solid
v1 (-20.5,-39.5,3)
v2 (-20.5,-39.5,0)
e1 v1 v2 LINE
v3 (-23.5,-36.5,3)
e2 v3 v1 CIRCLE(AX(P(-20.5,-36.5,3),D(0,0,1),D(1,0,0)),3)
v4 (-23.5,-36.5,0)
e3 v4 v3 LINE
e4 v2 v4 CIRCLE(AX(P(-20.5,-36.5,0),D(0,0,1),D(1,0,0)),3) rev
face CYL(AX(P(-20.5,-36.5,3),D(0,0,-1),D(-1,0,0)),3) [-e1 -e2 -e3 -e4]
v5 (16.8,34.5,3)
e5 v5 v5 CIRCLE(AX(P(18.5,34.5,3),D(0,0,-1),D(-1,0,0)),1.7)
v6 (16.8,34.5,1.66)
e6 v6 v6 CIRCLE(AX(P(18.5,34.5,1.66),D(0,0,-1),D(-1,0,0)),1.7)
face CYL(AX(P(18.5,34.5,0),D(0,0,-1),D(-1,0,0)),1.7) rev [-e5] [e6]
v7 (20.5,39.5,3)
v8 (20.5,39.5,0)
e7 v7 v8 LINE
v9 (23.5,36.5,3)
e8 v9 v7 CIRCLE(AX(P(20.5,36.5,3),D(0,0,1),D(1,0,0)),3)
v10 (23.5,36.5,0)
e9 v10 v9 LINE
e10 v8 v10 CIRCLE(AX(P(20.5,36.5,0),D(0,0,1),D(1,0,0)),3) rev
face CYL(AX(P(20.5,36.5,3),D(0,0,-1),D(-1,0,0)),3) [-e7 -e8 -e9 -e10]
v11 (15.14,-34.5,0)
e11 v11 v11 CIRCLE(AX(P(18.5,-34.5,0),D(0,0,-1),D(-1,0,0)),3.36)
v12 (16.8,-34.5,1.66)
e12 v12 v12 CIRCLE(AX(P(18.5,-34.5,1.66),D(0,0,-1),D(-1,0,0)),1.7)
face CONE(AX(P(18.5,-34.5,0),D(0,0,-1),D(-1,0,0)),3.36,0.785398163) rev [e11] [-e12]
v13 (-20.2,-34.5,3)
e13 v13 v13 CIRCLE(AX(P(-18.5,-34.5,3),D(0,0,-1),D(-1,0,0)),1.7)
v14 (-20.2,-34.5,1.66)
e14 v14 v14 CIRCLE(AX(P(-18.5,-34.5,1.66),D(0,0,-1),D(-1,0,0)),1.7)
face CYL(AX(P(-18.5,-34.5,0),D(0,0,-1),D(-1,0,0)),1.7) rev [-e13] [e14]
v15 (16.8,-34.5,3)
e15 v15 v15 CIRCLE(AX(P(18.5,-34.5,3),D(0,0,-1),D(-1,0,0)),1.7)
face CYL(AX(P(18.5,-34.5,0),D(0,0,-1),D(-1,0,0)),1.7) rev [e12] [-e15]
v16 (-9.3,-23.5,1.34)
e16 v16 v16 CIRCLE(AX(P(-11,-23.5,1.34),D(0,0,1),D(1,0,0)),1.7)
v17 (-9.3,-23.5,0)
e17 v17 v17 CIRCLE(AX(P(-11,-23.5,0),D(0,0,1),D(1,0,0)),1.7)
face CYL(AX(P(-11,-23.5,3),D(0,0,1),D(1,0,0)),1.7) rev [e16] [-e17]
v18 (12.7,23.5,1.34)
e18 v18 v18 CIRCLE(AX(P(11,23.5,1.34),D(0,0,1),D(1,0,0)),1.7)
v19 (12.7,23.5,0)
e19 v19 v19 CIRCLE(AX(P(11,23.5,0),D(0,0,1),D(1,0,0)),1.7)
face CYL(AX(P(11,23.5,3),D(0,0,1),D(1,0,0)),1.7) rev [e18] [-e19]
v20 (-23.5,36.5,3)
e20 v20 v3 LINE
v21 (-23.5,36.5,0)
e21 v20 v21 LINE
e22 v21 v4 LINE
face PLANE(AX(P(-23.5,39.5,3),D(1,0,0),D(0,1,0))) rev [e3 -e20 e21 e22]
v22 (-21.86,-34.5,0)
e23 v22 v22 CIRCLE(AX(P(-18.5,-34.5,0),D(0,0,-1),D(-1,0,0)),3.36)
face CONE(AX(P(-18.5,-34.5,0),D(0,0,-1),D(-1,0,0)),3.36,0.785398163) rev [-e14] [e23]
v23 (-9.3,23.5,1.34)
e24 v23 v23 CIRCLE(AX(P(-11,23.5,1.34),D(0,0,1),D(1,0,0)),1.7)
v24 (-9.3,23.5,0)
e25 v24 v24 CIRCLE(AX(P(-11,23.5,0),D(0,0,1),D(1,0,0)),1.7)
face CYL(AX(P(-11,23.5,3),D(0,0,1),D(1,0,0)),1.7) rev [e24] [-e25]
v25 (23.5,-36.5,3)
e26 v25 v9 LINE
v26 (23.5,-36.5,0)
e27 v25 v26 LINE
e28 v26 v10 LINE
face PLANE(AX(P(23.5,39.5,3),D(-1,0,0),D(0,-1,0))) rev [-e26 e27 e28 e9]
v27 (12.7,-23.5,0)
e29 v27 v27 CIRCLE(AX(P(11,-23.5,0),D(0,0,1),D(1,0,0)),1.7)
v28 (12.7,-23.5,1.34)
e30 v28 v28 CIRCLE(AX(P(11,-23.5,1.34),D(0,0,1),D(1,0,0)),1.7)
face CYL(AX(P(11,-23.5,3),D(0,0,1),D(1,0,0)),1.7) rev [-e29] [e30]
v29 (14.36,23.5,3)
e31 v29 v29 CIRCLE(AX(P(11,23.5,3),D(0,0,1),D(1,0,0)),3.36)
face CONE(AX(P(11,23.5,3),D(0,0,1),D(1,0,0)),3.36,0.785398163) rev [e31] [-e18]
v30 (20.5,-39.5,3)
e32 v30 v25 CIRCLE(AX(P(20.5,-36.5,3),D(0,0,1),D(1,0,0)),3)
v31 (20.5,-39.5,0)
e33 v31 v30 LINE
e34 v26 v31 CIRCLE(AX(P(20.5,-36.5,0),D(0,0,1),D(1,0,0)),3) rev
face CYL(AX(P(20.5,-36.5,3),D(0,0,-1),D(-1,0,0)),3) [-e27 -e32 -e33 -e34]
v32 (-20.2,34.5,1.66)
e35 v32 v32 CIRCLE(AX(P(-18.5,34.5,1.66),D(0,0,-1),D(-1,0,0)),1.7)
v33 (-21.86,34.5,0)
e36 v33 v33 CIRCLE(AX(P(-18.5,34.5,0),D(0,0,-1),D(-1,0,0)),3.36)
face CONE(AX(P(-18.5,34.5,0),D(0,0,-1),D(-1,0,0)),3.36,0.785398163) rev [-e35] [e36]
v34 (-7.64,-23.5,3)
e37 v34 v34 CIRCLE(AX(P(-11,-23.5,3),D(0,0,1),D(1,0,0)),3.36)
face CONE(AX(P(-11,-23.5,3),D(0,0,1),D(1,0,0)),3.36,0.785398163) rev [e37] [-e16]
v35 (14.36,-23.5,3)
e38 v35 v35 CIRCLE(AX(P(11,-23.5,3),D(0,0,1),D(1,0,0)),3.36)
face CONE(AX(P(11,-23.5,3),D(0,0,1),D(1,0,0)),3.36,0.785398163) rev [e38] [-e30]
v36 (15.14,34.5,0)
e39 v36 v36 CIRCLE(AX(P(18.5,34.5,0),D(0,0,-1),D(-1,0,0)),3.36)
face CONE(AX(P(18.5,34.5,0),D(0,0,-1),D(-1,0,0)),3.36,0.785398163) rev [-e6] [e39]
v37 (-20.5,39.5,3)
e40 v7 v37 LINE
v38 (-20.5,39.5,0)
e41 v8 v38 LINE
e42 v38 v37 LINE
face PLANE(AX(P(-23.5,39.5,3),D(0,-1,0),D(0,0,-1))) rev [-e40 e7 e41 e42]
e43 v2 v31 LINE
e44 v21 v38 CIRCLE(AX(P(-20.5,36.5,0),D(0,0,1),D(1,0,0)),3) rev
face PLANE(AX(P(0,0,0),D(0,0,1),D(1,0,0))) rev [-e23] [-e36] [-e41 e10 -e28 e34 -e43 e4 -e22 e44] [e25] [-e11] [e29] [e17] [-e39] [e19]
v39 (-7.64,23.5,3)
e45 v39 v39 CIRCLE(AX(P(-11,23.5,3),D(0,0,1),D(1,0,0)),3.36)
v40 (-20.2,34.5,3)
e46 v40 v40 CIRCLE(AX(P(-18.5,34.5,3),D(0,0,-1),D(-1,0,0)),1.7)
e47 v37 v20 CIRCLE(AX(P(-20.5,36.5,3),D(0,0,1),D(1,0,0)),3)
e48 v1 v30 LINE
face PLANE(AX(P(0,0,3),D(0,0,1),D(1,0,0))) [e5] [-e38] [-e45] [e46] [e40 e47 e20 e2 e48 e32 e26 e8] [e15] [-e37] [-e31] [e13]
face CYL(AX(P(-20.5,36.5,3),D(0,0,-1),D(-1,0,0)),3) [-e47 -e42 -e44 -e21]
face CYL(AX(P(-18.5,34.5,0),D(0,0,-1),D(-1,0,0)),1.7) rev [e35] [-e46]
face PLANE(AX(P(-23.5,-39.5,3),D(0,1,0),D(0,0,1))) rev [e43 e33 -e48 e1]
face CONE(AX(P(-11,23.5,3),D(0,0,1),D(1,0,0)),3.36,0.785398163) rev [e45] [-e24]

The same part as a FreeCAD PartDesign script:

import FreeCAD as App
import Part
import Sketcher
Q = App.Units.Quantity


def edges_at(feature, points):
    """Names of the edges that pass closest to the given points."""
    edges = feature.Shape.Edges
    near = lambda p: min(range(len(edges)), key=lambda i: edges[i].distToShape(Part.Vertex(*p))[0])
    return sorted({f"Edge{near(p) + 1}" for p in points})


def add_polygon(sketch, points):
    """Adds a closed chain of lines whose ends are joined by coincident constraints."""
    first, n = sketch.GeometryCount, len(points)
    for a, b in zip(points, points[1:] + points[:1]):
        sketch.addGeometry(Part.LineSegment(App.Vector(*a, 0), App.Vector(*b, 0)), False)
    for i in range(n):
        sketch.addConstraint(Sketcher.Constraint("Coincident", first + i, 2, first + (i + 1) % n, 1))

doc = App.newDocument("Part")
body = doc.addObject("PartDesign::Body", "Body")

# Sketch on XY plane
sketch1 = body.newObject("Sketcher::SketchObject", "Sketch")
sketch1.AttachmentSupport = (doc.getObject("XY_Plane"), [""])
sketch1.MapMode = "FlatFace"
add_polygon(sketch1, [(-23.5, 39.5), (-23.5, -39.5), (23.5, -39.5), (23.5, 39.5)])  # lines 0-3
sketch1.addConstraint(Sketcher.Constraint("Vertical", 0))
sketch1.addConstraint(Sketcher.Constraint("Horizontal", 1))
sketch1.addConstraint(Sketcher.Constraint("Vertical", 2))
sketch1.addConstraint(Sketcher.Constraint("Horizontal", 3))
sketch1.addConstraint(Sketcher.Constraint("Symmetric", 0, 2, 2, 2, -1, 1))
sketch1.addConstraint(Sketcher.Constraint("DistanceX", 1, 1, 1, 2, Q("47 mm")))
sketch1.addConstraint(Sketcher.Constraint("DistanceY", 0, 2, 0, 1, Q("79 mm")))
pad1 = body.newObject("PartDesign::Pad", "Pad")
pad1.Profile = sketch1
pad1.Length = 3

# Sketch on YZ plane
sketch2 = body.newObject("Sketcher::SketchObject", "Sketch001")
sketch2.AttachmentSupport = (doc.getObject("YZ_Plane"), [""])
sketch2.MapMode = "FlatFace"
sketch2.AttachmentOffset = App.Placement(App.Vector(0, 0, -11), App.Rotation())
add_polygon(sketch2, [(23.5, 0), (23.5, 3), (20.14, 3), (21.8, 1.34), (21.8, 0)])  # lines 0-4
sketch2.addGeometry(Part.LineSegment(App.Vector(23.5, 3, 0), App.Vector(23.5, 0, 0)), True)  # axis
sketch2.addConstraint(Sketcher.Constraint("Vertical", 0))
sketch2.addConstraint(Sketcher.Constraint("Horizontal", 1))
sketch2.addConstraint(Sketcher.Constraint("Vertical", 3))
sketch2.addConstraint(Sketcher.Constraint("Horizontal", 4))
sketch2.addConstraint(Sketcher.Constraint("Vertical", 5))
sketch2.addConstraint(Sketcher.Constraint("Coincident", 5, 1, 0, 2))
sketch2.addConstraint(Sketcher.Constraint("PointOnObject", 3, 2, -1))
sketch2.addConstraint(Sketcher.Constraint("PointOnObject", 5, 2, -1))
sketch2.addConstraint(Sketcher.Constraint("DistanceY", 0, 1, 0, 2, Q("3 mm")))
sketch2.addConstraint(Sketcher.Constraint("Angle", 2, Q("-45 deg")))
sketch2.addConstraint(Sketcher.Constraint("DistanceX", 4, 1, 4, 2, Q("1.7 mm")))
sketch2.addConstraint(Sketcher.Constraint("DistanceX", 1, 2, 1, 1, Q("3.36 mm")))
sketch2.addConstraint(Sketcher.Constraint("DistanceX", -1, 1, 0, 2, Q("23.5 mm")))
groove = body.newObject("PartDesign::Groove", "Groove")
groove.Profile = sketch2
groove.ReferenceAxis = (sketch2, ["Axis0"])
groove.Angle = 360
doc.recompute()

linearpattern = body.newObject("PartDesign::LinearPattern", "LinearPattern")
linearpattern.Originals = [groove]
linearpattern.Direction = (doc.getObject("X_Axis"), [""])
linearpattern.Mode = "offset"
linearpattern.Offset = 22
linearpattern.Occurrences = 2
body.Tip = linearpattern
doc.recompute()

linearpattern2 = body.newObject("PartDesign::LinearPattern", "LinearPattern001")
linearpattern2.Originals = [groove]
linearpattern2.Direction = (doc.getObject("Y_Axis"), [""])
linearpattern2.Mode = "offset"
linearpattern2.Offset = 47
linearpattern2.Occurrences = 2
linearpattern2.Reversed = True
body.Tip = linearpattern2
doc.recompute()

datumline = body.newObject("PartDesign::Line", "DatumLine")
datumline.Placement = App.Placement(App.Vector(0, 0, 0), App.Rotation(App.Vector(0, 0, 1), App.Vector(0.423940106, -0.905690227, 0)))
linearpattern3 = body.newObject("PartDesign::LinearPattern", "LinearPattern002")
linearpattern3.Originals = [groove]
linearpattern3.Direction = (datumline, [""])
linearpattern3.Mode = "offset"
linearpattern3.Offset = 51.894123
linearpattern3.Occurrences = 2
body.Tip = linearpattern3

# Sketch on YZ plane
sketch3 = body.newObject("Sketcher::SketchObject", "Sketch002")
sketch3.AttachmentSupport = (doc.getObject("YZ_Plane"), [""])
sketch3.MapMode = "FlatFace"
sketch3.AttachmentOffset = App.Placement(App.Vector(0, 0, 18.5), App.Rotation())
add_polygon(sketch3, [(34.5, 3), (34.5, 0), (37.86, 0), (36.2, 1.66), (36.2, 3)])  # lines 0-4
sketch3.addGeometry(Part.LineSegment(App.Vector(34.5, 0, 0), App.Vector(34.5, 3, 0)), True)  # axis
sketch3.addConstraint(Sketcher.Constraint("Vertical", 0))
sketch3.addConstraint(Sketcher.Constraint("Horizontal", 1))
sketch3.addConstraint(Sketcher.Constraint("Vertical", 3))
sketch3.addConstraint(Sketcher.Constraint("Horizontal", 4))
sketch3.addConstraint(Sketcher.Constraint("Vertical", 5))
sketch3.addConstraint(Sketcher.Constraint("Coincident", 5, 1, 0, 2))
sketch3.addConstraint(Sketcher.Constraint("PointOnObject", 0, 2, -1))
sketch3.addConstraint(Sketcher.Constraint("Horizontal", 3, 2, 5, 2))
sketch3.addConstraint(Sketcher.Constraint("DistanceY", 0, 2, 0, 1, Q("3 mm")))
sketch3.addConstraint(Sketcher.Constraint("Angle", 2, Q("135 deg")))
sketch3.addConstraint(Sketcher.Constraint("DistanceX", 4, 2, 4, 1, Q("1.7 mm")))
sketch3.addConstraint(Sketcher.Constraint("DistanceX", 1, 1, 1, 2, Q("3.36 mm")))
sketch3.addConstraint(Sketcher.Constraint("DistanceX", -1, 1, 0, 2, Q("34.5 mm")))
groove2 = body.newObject("PartDesign::Groove", "Groove001")
groove2.Profile = sketch3
groove2.ReferenceAxis = (sketch3, ["Axis0"])
groove2.Angle = 360
doc.recompute()

linearpattern4 = body.newObject("PartDesign::LinearPattern", "LinearPattern003")
linearpattern4.Originals = [groove2]
linearpattern4.Direction = (doc.getObject("X_Axis"), [""])
linearpattern4.Mode = "offset"
linearpattern4.Offset = 37
linearpattern4.Occurrences = 2
linearpattern4.Reversed = True
body.Tip = linearpattern4
doc.recompute()

linearpattern5 = body.newObject("PartDesign::LinearPattern", "LinearPattern004")
linearpattern5.Originals = [groove2]
linearpattern5.Direction = (doc.getObject("Y_Axis"), [""])
linearpattern5.Mode = "offset"
linearpattern5.Offset = 69
linearpattern5.Occurrences = 2
linearpattern5.Reversed = True
body.Tip = linearpattern5
doc.recompute()

datumline2 = body.newObject("PartDesign::Line", "DatumLine001")
datumline2.Placement = App.Placement(App.Vector(0, 0, 0), App.Rotation(App.Vector(0, 0, 1), App.Vector(-0.472575809, -0.881290023, 0)))
linearpattern6 = body.newObject("PartDesign::LinearPattern", "LinearPattern005")
linearpattern6.Originals = [groove2]
linearpattern6.Direction = (datumline2, [""])
linearpattern6.Mode = "offset"
linearpattern6.Offset = 78.294317
linearpattern6.Occurrences = 2
body.Tip = linearpattern6
doc.recompute()

fillet = body.newObject("PartDesign::Fillet", "Fillet")
fillet.Base = (linearpattern6, edges_at(linearpattern6, [
    (23.5, -39.5, 1.5),
    (-23.5, -39.5, 1.5),
    (-23.5, 39.5, 1.5),
    (23.5, 39.5, 1.5),
]))
fillet.Radius = 3

doc.recompute()
